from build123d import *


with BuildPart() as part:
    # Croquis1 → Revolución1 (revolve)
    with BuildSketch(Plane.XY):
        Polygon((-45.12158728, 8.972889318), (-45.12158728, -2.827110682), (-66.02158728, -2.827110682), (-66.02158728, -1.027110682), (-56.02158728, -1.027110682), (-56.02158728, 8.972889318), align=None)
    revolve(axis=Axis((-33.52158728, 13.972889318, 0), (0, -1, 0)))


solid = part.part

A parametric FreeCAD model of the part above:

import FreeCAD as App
import Part
import Sketcher

V = App.Vector
Q = App.Units.Quantity

doc = App.newDocument("Part")
body = doc.addObject("PartDesign::Body", "Body")

sketch1 = doc.addObject("Sketcher::SketchObject", "Sketch")
body.addObject(sketch1)
sketch1.AttachmentSupport = (doc.XY_Plane, [""])
sketch1.MapMode = "FlatFace"
sketch1.addGeometry(Part.LineSegment(V(-45.121587, -2.827111, 0), V(-45.121587, 8.972889, 0)), False)
sketch1.addGeometry(Part.LineSegment(V(-45.121587, 8.972889, 0), V(-56.021587, 8.972889, 0)), False)
sketch1.addGeometry(Part.LineSegment(V(-56.021587, 8.972889, 0), V(-56.021587, -1.027111, 0)), False)
sketch1.addGeometry(Part.LineSegment(V(-56.021587, -1.027111, 0), V(-66.021587, -1.027111, 0)), False)
sketch1.addGeometry(Part.LineSegment(V(-66.021587, -1.027111, 0), V(-66.021587, -2.827111, 0)), False)
sketch1.addGeometry(Part.LineSegment(V(-66.021587, -2.827111, 0), V(-45.121587, -2.827111, 0)), False)
sketch1.addGeometry(Part.LineSegment(V(-33.521587, 8.972889, 0), V(-33.521587, -2.827111, 0)), True)
sketch1.addConstraint(Sketcher.Constraint("Coincident", 0, 2, 1, 1))
sketch1.addConstraint(Sketcher.Constraint("Coincident", 1, 2, 2, 1))
sketch1.addConstraint(Sketcher.Constraint("Coincident", 2, 2, 3, 1))
sketch1.addConstraint(Sketcher.Constraint("Coincident", 3, 2, 4, 1))
sketch1.addConstraint(Sketcher.Constraint("Coincident", 4, 2, 5, 1))
sketch1.addConstraint(Sketcher.Constraint("Coincident", 5, 2, 0, 1))
sketch1.addConstraint(Sketcher.Constraint("Vertical", 0))
sketch1.addConstraint(Sketcher.Constraint("Horizontal", 1))
sketch1.addConstraint(Sketcher.Constraint("Vertical", 2))
sketch1.addConstraint(Sketcher.Constraint("Horizontal", 3))
sketch1.addConstraint(Sketcher.Constraint("Vertical", 4))
sketch1.addConstraint(Sketcher.Constraint("Horizontal", 5))
sketch1.addConstraint(Sketcher.Constraint("Vertical", 6))
sketch1.addConstraint(Sketcher.Constraint("Horizontal", 1, 2, 6, 1))
sketch1.addConstraint(Sketcher.Constraint("Horizontal", 5, 2, 6, 2))
sketch1.addConstraint(Sketcher.Constraint("Equal", 3, 2))
sketch1.addConstraint(Sketcher.Constraint("DistanceX", 3, 2, 3, 1, Q("10 mm")))
sketch1.addConstraint(Sketcher.Constraint("DistanceX", 1, 2, 1, 1, Q("10.9 mm")))
sketch1.addConstraint(Sketcher.Constraint("DistanceY", 0, 1, 0, 2, Q("11.8 mm")))
sketch1.addConstraint(Sketcher.Constraint("DistanceX", 0, 2, 6, 1, Q("11.6 mm")))
sketch1.addConstraint(Sketcher.Constraint("DistanceY", -1, 1, 0, 2, Q("8.972889 mm")))
sketch1.addConstraint(Sketcher.Constraint("DistanceX", 0, 2, -1, 1, Q("45.121587 mm")))
revolution = doc.addObject("PartDesign::Revolution", "Revolution")
body.addObject(revolution)
revolution.Profile = sketch1
revolution.ReferenceAxis = (sketch1, ["Axis0"])
revolution.Angle = 360

doc.recompute()
